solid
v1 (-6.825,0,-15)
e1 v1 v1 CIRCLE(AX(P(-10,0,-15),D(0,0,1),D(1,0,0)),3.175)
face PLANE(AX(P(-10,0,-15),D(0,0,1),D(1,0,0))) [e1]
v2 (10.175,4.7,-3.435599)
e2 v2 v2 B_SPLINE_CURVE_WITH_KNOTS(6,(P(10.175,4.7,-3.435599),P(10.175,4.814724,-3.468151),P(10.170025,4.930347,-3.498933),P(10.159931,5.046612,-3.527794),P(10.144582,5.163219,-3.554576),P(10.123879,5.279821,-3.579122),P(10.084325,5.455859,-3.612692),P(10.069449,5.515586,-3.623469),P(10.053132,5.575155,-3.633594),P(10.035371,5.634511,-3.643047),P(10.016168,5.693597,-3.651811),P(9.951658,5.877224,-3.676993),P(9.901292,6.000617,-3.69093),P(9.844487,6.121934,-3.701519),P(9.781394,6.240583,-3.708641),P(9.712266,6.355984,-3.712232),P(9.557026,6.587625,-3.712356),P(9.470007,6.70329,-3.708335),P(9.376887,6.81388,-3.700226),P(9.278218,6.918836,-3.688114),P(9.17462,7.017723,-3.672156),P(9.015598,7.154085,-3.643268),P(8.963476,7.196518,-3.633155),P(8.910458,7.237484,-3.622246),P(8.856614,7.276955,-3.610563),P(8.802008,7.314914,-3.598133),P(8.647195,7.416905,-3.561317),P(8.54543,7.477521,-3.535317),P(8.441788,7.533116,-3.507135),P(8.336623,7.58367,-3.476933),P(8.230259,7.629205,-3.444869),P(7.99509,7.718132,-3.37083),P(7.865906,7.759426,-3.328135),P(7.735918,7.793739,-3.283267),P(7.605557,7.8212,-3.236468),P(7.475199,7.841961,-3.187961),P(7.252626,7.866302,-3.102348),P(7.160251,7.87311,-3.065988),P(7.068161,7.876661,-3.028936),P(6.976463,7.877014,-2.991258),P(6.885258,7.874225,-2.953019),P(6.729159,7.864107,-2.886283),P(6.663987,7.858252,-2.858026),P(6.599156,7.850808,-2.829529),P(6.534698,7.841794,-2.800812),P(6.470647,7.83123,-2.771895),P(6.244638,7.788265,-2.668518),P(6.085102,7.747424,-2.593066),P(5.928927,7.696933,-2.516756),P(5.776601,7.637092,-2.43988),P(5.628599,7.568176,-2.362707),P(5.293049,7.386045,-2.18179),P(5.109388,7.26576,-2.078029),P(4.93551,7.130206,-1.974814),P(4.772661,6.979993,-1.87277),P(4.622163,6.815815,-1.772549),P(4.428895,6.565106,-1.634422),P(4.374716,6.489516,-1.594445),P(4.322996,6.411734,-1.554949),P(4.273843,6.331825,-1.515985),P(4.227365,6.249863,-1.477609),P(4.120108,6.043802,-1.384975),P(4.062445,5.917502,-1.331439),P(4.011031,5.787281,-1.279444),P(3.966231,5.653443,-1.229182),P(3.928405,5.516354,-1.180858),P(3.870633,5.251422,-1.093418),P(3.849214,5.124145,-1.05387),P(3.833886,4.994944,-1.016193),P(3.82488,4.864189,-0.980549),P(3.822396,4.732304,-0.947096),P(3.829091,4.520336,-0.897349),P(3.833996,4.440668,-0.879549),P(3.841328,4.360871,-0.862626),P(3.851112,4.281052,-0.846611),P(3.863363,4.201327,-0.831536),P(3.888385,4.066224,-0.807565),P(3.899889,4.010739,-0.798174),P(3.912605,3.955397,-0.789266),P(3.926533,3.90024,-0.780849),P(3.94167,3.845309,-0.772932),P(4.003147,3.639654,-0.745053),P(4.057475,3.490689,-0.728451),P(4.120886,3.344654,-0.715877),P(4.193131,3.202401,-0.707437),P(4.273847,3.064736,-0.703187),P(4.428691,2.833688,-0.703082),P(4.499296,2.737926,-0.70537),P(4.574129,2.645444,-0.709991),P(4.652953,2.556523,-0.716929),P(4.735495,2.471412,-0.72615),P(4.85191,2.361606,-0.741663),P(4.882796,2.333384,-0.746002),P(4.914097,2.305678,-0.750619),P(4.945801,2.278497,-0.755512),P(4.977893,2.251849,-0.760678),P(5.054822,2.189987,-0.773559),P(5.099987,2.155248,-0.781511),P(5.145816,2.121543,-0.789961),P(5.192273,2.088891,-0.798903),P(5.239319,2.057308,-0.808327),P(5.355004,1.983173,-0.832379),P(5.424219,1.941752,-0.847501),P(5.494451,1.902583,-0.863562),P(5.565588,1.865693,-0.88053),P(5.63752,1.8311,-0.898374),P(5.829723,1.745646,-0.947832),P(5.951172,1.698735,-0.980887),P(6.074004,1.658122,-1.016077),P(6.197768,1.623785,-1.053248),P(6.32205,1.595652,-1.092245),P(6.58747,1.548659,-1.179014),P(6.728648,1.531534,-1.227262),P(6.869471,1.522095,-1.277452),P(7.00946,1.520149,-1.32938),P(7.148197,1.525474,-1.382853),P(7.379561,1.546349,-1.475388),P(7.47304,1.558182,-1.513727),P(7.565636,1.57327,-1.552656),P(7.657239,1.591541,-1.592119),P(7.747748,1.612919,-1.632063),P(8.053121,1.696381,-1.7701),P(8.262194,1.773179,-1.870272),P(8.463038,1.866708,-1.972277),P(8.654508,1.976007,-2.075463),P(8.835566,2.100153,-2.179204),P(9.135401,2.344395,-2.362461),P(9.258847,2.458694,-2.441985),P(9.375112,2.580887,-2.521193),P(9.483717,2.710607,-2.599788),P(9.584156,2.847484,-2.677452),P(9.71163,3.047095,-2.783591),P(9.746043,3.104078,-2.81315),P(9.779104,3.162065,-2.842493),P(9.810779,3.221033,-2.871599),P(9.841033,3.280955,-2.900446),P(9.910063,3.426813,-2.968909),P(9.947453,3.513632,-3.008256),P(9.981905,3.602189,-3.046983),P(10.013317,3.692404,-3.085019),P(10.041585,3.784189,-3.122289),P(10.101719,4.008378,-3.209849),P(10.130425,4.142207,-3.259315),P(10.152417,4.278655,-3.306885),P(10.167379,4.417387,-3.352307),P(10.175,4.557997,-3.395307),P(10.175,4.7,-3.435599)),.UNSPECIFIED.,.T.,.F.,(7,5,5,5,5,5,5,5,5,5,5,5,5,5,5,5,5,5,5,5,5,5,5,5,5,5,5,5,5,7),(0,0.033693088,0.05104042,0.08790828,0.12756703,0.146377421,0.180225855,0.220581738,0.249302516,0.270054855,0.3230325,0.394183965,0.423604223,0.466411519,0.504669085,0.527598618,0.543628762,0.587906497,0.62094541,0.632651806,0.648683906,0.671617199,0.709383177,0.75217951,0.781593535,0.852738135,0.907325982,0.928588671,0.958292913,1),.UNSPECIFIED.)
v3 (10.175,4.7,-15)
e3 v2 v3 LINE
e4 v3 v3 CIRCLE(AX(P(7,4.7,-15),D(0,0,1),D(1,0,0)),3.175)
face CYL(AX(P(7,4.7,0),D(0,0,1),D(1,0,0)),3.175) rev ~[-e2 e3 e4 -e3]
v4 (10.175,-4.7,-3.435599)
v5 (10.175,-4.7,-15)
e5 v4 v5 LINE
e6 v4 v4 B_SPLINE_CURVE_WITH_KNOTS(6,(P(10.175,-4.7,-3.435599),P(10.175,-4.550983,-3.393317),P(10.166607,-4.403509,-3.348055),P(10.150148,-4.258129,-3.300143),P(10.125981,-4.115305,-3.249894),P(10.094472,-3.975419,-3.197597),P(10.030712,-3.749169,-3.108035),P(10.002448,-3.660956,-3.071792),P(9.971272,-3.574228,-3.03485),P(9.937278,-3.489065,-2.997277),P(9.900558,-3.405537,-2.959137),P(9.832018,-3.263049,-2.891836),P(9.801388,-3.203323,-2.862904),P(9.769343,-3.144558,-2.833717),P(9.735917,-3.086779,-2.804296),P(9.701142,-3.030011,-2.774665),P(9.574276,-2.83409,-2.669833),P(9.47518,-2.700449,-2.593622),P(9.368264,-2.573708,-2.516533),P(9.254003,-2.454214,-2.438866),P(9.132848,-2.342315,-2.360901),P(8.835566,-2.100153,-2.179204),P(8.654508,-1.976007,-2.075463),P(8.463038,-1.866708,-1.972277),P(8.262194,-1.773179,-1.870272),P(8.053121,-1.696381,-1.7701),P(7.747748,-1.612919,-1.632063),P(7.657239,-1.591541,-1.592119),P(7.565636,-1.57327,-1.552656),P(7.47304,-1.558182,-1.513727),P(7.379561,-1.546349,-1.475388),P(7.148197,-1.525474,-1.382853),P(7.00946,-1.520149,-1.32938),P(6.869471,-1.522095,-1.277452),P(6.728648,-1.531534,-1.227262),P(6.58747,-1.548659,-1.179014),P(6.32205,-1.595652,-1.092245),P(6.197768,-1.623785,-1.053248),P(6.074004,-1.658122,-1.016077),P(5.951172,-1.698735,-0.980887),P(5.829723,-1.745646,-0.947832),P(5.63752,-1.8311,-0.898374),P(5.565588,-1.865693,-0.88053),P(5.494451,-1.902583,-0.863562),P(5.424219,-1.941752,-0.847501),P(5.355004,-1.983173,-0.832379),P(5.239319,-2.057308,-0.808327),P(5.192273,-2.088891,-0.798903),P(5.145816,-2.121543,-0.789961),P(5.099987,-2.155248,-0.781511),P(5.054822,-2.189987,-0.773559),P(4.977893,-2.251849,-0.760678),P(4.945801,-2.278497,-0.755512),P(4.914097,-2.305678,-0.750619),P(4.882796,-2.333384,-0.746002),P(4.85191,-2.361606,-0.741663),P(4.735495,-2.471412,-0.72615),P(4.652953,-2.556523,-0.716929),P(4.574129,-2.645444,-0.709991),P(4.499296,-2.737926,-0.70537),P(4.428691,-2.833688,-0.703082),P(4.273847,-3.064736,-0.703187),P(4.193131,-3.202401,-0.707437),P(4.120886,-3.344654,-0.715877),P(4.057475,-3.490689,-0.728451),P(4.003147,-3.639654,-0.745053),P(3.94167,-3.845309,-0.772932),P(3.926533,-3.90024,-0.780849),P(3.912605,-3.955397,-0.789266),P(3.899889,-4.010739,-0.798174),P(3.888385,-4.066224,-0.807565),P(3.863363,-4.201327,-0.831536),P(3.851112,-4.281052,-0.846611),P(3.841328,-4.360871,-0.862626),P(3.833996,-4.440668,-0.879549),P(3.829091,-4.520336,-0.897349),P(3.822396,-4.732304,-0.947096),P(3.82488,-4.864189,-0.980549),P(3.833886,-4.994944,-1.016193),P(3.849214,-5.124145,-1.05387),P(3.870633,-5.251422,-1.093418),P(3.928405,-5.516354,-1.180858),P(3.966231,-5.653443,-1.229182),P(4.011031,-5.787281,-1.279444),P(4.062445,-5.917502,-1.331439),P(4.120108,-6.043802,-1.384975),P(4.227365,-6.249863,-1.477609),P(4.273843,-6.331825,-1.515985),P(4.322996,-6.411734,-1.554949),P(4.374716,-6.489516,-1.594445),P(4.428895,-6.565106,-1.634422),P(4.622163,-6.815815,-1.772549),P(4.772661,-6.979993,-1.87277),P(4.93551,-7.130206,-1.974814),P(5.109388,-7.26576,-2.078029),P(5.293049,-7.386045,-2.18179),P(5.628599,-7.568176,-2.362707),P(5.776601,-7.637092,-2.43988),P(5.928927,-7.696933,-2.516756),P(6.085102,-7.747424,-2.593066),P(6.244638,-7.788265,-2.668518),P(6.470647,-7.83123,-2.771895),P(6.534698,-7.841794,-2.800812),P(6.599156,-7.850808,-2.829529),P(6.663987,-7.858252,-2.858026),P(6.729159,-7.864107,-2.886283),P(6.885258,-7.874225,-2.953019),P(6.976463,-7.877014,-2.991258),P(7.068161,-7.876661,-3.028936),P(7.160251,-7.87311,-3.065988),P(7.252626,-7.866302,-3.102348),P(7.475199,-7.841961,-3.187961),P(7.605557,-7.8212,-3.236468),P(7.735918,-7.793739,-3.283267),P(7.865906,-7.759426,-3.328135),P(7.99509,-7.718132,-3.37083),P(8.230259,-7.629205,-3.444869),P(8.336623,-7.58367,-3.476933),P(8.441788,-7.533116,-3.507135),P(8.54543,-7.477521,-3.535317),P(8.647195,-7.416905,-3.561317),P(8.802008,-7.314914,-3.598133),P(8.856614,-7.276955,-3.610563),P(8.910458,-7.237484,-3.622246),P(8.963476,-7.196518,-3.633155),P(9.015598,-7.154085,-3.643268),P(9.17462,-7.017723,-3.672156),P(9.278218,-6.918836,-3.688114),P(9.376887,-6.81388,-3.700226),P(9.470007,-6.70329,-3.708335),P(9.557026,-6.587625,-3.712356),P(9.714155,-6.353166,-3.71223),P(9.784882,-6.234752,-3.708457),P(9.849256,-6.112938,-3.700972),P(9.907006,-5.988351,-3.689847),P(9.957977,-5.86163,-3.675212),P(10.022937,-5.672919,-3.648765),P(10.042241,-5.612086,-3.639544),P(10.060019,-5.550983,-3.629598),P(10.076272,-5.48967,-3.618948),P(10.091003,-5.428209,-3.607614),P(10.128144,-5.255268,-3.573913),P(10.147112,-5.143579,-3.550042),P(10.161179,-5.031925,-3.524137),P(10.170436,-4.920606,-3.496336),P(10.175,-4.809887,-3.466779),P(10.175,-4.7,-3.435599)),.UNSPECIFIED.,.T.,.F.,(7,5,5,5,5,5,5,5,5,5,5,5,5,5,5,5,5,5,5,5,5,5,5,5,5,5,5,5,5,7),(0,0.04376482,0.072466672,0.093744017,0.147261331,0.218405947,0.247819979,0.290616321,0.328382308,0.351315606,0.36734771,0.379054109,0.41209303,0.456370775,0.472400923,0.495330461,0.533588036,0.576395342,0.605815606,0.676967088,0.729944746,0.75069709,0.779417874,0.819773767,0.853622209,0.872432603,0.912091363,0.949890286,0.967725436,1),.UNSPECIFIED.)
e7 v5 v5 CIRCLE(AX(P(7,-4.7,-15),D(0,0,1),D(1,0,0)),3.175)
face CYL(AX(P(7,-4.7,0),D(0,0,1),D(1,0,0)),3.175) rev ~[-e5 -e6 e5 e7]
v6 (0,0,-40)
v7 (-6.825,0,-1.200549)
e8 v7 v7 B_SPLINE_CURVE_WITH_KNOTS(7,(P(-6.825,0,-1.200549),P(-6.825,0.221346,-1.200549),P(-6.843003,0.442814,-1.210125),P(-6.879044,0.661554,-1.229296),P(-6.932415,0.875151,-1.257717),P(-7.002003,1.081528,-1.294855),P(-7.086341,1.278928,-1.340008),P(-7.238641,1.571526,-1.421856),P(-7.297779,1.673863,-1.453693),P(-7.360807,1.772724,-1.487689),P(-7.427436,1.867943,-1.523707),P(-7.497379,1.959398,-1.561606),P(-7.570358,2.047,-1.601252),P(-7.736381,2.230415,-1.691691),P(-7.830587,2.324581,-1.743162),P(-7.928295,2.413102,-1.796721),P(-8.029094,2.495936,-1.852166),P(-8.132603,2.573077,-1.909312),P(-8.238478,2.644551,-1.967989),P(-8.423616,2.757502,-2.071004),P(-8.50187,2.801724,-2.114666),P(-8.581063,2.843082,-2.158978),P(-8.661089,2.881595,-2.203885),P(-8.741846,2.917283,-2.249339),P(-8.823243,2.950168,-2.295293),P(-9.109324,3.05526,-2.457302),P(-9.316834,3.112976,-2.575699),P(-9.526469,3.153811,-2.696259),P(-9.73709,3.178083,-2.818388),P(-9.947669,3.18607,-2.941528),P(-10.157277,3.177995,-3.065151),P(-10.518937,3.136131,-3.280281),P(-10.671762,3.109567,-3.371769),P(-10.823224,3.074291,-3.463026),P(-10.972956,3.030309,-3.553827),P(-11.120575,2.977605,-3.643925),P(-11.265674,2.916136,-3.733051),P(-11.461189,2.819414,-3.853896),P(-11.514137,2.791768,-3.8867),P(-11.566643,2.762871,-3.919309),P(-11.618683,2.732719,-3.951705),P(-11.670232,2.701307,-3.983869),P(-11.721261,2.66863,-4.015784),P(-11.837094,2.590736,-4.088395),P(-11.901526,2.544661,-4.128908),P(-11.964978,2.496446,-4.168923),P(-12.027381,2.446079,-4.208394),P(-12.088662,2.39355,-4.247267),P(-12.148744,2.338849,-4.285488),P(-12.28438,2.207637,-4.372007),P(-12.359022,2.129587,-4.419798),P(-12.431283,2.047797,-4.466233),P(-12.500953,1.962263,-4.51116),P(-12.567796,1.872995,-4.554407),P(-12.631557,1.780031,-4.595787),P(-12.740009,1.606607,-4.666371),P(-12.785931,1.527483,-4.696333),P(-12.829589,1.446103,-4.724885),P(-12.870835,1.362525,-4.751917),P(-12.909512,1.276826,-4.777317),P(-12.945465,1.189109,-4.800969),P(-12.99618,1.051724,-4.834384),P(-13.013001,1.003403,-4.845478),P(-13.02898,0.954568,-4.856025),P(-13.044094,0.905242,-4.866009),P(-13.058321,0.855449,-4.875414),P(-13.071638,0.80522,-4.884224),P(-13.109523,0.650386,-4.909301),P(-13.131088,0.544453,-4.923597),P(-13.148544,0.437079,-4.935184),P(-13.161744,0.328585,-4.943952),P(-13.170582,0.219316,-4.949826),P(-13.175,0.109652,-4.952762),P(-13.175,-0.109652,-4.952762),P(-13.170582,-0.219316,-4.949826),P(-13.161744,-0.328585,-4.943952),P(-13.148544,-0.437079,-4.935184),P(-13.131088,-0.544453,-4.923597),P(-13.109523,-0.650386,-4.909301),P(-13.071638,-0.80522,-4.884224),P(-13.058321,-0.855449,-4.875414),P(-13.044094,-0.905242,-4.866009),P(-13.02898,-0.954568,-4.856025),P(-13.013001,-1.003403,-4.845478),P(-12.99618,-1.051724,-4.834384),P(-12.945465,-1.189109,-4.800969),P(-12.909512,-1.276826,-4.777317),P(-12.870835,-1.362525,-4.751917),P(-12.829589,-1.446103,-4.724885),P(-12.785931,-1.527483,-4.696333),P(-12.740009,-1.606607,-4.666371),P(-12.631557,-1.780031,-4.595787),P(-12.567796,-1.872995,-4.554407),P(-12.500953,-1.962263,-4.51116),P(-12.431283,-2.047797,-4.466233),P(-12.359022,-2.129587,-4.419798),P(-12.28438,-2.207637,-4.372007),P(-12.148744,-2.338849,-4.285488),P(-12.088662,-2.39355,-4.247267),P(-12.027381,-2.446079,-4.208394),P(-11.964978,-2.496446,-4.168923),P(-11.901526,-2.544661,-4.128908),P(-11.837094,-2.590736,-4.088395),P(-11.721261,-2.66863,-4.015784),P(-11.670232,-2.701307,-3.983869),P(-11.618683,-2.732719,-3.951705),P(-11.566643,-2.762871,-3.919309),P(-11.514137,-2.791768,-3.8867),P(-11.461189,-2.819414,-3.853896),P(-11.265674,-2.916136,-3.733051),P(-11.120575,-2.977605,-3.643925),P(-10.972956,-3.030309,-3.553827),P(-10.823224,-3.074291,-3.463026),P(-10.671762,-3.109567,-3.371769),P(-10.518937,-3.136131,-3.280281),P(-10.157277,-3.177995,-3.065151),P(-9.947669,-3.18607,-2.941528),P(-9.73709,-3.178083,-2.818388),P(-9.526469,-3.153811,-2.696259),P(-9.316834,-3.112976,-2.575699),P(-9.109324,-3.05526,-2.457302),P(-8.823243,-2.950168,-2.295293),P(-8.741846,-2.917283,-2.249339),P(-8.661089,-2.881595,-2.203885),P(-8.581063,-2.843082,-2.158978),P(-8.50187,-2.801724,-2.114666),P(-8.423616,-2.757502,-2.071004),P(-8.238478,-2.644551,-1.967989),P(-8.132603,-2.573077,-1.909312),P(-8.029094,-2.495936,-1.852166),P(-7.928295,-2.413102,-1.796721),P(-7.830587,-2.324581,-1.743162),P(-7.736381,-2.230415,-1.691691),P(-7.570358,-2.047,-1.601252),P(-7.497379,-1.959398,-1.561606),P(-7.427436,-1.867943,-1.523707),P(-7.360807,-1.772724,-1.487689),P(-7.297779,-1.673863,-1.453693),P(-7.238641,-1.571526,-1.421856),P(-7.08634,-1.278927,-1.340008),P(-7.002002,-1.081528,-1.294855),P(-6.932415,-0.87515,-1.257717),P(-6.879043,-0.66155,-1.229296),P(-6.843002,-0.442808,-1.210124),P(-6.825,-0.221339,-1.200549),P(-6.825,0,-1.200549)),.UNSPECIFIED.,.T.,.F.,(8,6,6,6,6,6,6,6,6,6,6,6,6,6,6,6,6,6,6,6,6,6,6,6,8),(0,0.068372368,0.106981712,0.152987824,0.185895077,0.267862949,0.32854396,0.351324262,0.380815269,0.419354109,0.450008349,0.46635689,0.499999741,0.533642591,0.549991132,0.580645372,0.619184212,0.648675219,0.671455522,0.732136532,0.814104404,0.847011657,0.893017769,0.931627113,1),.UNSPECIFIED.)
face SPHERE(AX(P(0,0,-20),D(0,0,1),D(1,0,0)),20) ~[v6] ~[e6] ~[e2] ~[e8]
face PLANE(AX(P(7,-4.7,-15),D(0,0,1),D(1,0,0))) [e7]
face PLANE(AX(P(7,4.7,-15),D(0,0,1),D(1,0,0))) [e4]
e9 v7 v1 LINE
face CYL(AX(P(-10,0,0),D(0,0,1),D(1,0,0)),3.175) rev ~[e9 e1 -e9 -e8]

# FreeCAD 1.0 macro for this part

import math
import FreeCAD as App
import Part
import Sketcher

V = App.Vector

doc = App.newDocument("Part")
params = doc.addObject("Spreadsheet::Sheet", "Params")
for row, (alias, value) in enumerate([
    ("sketch1_radius", "20 mm"),
    ("revolution_angle", "360 deg"),
    ("sketch2_diameter", "6.35 mm"),
    ("pocket1_length", "15 mm"),
], start=1):
    params.set(f"A{row}", alias)
    params.set(f"B{row}", "=" + value)
    params.setAlias(f"B{row}", alias)

body = doc.addObject("PartDesign::Body", "Body")

sketch1 = doc.addObject("Sketcher::SketchObject", "Sketch")
body.addObject(sketch1)
sketch1.AttachmentSupport = (doc.XZ_Plane, [""])
sketch1.MapMode = "FlatFace"
sketch1.addGeometry([
    Part.LineSegment(V(0, 0, 0), V(0, -40, 0)),
    Part.ArcOfCircle(Part.Circle(V(0, -20, 0), V(0, 0, 1), 20), math.radians(-90), math.radians(90)),
], False)
sketch1.addConstraint([
    Sketcher.Constraint("Coincident", 0, 1, 1, 2),
    Sketcher.Constraint("Coincident", 1, 1, 0, 2),
    Sketcher.Constraint("Vertical", 0),
    Sketcher.Constraint("Coincident", 0, 1, -1, 1),
    Sketcher.Constraint("PointOnObject", 1, 3, -2),
    Sketcher.Constraint("Radius", 1, 20.0),
])
sketch1.setExpression("Constraints[5]", "Params.sketch1_radius")
revolution = doc.addObject("PartDesign::Revolution", "Revolution")
body.addObject(revolution)
revolution.Profile = sketch1
revolution.ReferenceAxis = (sketch1, ["V_Axis"])
revolution.setExpression("Angle", "Params.revolution_angle")

sketch2 = doc.addObject("Sketcher::SketchObject", "Sketch001")
body.addObject(sketch2)
sketch2.AttachmentSupport = (doc.XY_Plane, [""])
sketch2.MapMode = "FlatFace"
sketch2.addGeometry([
    Part.Circle(V(-10, 0, 0), V(0, 0, 1), 3.2),
    Part.Circle(V(7, 4.7, 0), V(0, 0, 1), 3.2),
    Part.Circle(V(7, -4.7, 0), V(0, 0, 1), 3.2),
], False)
sketch2.addConstraint([
    Sketcher.Constraint("Equal", 0, 1),
    Sketcher.Constraint("Equal", 1, 2),
    Sketcher.Constraint("Symmetric", 1, 3, 2, 3, -1),
    Sketcher.Constraint("PointOnObject", 0, 3, -1),
    Sketcher.Constraint("Diameter", 0, 6.35),
    Sketcher.Constraint("DistanceX", 0, 3, -1, 1, 10.0),
    Sketcher.Constraint("DistanceX", -1, 1, 1, 3, 7.0),
    Sketcher.Constraint("DistanceY", -1, 1, 1, 3, 4.7),
])
sketch2.setExpression("Constraints[4]", "Params.sketch2_diameter")
pocket1 = doc.addObject("PartDesign::Pocket", "Pocket")
body.addObject(pocket1)
pocket1.Profile = sketch2
pocket1.setExpression("Length", "Params.pocket1_length")

doc.recompute()
